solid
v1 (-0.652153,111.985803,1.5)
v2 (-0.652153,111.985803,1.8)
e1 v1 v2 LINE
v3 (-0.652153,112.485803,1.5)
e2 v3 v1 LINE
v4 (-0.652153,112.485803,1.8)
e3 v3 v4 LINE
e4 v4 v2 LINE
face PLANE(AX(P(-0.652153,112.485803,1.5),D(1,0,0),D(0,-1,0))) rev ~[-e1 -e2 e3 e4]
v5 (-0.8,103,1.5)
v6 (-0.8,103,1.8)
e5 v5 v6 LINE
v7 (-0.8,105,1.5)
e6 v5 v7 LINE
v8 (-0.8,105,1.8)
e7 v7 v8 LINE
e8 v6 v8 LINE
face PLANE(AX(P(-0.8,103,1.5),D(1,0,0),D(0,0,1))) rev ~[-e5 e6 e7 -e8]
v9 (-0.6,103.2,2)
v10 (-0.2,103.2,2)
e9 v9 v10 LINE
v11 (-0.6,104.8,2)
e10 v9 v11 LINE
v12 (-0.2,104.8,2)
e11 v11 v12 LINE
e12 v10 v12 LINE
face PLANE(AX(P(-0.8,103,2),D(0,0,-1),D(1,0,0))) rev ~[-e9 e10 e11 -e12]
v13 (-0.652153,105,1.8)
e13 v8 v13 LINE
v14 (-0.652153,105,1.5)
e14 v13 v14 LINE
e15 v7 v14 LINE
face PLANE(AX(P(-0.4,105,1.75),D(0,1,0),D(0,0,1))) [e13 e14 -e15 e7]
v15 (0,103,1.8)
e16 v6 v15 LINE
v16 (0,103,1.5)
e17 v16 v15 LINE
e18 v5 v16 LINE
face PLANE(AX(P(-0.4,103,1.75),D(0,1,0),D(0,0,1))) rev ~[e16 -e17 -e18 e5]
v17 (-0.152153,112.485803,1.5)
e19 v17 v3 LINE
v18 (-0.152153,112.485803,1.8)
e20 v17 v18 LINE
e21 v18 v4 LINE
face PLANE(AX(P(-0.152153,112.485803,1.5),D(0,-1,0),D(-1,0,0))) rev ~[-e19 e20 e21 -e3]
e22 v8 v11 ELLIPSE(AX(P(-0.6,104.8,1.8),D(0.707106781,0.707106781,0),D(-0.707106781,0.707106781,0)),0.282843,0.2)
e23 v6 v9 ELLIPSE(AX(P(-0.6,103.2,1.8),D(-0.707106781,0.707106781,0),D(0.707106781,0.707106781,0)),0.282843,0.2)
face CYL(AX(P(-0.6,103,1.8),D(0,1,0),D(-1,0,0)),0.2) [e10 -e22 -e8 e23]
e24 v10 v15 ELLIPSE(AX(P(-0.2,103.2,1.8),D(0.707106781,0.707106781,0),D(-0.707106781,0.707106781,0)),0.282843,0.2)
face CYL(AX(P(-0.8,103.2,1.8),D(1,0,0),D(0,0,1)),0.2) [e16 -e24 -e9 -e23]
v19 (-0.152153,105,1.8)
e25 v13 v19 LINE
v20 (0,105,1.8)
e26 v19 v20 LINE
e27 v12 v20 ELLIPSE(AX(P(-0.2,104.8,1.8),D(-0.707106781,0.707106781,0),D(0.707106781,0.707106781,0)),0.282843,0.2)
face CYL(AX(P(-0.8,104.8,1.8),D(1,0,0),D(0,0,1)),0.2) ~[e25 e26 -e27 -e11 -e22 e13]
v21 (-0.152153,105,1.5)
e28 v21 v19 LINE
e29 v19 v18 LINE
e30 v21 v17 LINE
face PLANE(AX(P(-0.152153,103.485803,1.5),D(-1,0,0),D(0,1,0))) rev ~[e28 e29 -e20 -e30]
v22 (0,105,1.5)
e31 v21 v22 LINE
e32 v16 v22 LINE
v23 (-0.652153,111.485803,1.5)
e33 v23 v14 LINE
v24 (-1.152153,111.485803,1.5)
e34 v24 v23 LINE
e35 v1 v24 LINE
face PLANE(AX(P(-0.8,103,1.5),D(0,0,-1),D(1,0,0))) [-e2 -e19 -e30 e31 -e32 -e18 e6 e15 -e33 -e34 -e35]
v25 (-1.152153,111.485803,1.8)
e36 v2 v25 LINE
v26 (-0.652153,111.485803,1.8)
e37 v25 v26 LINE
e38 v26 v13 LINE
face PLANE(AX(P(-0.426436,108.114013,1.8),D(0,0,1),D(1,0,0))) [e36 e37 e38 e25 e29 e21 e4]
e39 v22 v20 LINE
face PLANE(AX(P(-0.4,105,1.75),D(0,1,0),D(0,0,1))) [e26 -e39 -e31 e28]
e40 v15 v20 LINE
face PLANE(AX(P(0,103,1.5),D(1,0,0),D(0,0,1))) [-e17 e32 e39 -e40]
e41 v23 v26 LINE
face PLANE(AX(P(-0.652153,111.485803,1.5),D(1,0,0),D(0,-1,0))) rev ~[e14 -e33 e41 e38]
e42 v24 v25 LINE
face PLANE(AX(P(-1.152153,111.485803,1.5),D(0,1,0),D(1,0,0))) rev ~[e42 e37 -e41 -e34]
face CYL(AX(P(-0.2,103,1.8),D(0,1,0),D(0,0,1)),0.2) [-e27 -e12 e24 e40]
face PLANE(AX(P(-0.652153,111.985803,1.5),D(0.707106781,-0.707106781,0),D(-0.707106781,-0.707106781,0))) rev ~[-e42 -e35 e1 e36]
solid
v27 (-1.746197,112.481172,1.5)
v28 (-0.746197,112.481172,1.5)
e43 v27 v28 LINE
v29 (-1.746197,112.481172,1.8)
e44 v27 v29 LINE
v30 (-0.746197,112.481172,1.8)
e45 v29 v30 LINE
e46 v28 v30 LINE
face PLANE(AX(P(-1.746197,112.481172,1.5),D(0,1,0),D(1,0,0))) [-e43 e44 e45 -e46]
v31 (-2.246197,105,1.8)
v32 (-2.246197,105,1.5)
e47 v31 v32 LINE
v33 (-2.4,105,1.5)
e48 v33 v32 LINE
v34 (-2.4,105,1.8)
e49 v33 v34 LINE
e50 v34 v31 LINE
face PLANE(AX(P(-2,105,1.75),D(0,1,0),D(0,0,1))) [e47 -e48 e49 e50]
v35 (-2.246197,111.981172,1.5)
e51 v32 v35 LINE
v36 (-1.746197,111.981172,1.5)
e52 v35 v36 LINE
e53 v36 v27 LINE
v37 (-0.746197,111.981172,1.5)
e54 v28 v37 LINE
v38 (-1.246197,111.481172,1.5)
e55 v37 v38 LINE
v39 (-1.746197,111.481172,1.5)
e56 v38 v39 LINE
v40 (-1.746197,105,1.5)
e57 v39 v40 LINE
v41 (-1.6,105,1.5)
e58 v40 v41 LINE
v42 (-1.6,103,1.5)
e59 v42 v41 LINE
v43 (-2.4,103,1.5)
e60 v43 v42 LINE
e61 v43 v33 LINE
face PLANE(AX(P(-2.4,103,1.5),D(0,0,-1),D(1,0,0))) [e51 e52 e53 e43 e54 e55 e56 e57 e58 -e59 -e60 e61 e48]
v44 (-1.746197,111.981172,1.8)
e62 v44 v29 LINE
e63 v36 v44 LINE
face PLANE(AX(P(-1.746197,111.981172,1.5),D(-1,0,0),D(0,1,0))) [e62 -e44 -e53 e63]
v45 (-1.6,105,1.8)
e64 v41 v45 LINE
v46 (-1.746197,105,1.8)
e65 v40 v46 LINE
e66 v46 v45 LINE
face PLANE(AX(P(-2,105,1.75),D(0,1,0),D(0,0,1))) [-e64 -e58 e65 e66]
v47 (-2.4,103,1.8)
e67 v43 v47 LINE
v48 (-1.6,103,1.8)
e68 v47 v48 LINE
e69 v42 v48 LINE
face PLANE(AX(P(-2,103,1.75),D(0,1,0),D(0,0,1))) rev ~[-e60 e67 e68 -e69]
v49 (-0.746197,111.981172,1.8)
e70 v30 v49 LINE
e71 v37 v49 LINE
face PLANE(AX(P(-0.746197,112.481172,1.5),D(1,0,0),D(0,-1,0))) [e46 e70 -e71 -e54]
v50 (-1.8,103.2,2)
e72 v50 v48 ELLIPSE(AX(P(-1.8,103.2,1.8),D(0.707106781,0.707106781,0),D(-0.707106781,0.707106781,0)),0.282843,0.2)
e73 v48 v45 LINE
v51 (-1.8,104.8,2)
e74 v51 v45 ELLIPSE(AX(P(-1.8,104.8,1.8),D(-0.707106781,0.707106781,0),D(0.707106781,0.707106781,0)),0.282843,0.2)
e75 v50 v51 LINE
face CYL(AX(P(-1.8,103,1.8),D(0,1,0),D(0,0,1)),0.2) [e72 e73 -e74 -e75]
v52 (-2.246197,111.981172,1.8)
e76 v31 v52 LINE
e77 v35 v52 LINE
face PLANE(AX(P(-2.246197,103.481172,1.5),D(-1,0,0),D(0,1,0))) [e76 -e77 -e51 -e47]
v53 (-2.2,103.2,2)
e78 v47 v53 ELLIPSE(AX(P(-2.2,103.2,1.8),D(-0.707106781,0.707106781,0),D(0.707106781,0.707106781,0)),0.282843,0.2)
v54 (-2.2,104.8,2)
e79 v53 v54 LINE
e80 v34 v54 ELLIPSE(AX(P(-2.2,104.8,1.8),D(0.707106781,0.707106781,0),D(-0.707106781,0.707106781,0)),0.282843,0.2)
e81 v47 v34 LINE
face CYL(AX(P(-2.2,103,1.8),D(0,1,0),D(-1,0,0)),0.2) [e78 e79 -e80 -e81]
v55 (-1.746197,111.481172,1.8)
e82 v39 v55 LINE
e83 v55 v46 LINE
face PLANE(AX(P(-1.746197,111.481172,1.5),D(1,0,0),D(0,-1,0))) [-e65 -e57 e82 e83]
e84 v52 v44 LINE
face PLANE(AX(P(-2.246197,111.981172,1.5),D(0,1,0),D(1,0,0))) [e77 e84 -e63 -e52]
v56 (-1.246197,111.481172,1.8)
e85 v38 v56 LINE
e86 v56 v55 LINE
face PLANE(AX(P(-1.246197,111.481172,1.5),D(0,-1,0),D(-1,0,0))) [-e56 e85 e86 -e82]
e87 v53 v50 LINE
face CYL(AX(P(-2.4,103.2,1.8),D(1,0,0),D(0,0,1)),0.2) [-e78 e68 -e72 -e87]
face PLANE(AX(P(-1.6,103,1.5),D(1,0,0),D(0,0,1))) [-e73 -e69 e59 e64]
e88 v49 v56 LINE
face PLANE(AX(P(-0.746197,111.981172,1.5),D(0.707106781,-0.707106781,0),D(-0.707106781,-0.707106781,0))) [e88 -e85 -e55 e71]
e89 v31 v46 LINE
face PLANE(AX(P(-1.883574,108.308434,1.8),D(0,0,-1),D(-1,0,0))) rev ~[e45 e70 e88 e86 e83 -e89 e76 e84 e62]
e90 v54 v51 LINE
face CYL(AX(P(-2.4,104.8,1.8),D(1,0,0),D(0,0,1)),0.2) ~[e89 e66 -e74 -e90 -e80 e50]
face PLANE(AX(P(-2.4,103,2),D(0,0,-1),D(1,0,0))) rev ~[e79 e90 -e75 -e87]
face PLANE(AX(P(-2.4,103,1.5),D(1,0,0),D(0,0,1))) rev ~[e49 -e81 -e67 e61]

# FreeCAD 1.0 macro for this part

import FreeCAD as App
import Part
import Sketcher
from FreeCAD import Vector
Q = App.Units.Quantity


def edges_at(feature, points):
    """Names of the edges that pass closest to the given points."""
    edges = feature.Shape.Edges
    near = lambda p: min(range(len(edges)), key=lambda i: edges[i].distToShape(Part.Vertex(*p))[0])
    return sorted({f"Edge{near(p) + 1}" for p in points})


def add_polygon(sketch, points):
    """Adds a closed chain of lines whose ends are joined by coincident constraints."""
    first, n = sketch.GeometryCount, len(points)
    for a, b in zip(points, points[1:] + points[:1]):
        sketch.addGeometry(Part.LineSegment(App.Vector(*a, 0), App.Vector(*b, 0)), False)
    for i in range(n):
        sketch.addConstraint(Sketcher.Constraint("Coincident", first + i, 2, first + (i + 1) % n, 1))

doc = App.newDocument("Part")
body = doc.addObject("PartDesign::Body", "Body")

sketch1 = body.newObject("Sketcher::SketchObject", "Sketch")
sketch1.AttachmentSupport = (doc.getObject("XY_Plane"), [""])
sketch1.MapMode = "FlatFace"
sketch1.AttachmentOffset = App.Placement(Vector(0, 0, -6), App.Rotation())
add_polygon(sketch1, [(5.9, 2.4), (5.9, 1.6), (6.4, 1.6), (6.4, 2.4)])
sketch1.addConstraint(Sketcher.Constraint("Vertical", 0))
sketch1.addConstraint(Sketcher.Constraint("Horizontal", 1))
sketch1.addConstraint(Sketcher.Constraint("Vertical", 2))
sketch1.addConstraint(Sketcher.Constraint("Horizontal", 3))
sketch1.addConstraint(Sketcher.Constraint("DistanceX", 1, 1, 1, 2, 0.5))
sketch1.addConstraint(Sketcher.Constraint("DistanceY", 0, 2, 0, 1, 0.8))
sketch1.addConstraint(Sketcher.Constraint("DistanceX", -1, 1, 0, 2, 5.9))
sketch1.addConstraint(Sketcher.Constraint("DistanceY", -1, 1, 0, 2, 1.6))
pad1 = body.newObject("PartDesign::Pad", "Pad")
pad1.Profile = sketch1
pad1.Length = 2
doc.recompute()

fillet = body.newObject("PartDesign::Fillet", "Fillet")
fillet.Base = (pad1, edges_at(pad1, [
    (6.4, 1.6, -5),
    (6.4, 2, -4),
    (6.4, 2.4, -5),
    (6.4, 2, -6),
]))
fillet.Radius = 0.2
body2 = doc.addObject("PartDesign::Body", "Body001")
doc.recompute()

body.Placement = App.Placement(Vector(0, 0, 0), App.Rotation(Vector(0, 1, 0), 270))
boolean = body2.newObject("PartDesign::Boolean", "Boolean")
boolean.Type = "Fuse"
boolean.addObjects([body])
body3 = doc.addObject("PartDesign::Body", "Body002")
doc.recompute()

body2.Placement = App.Placement(Vector(-4, 109, -4.4), App.Rotation(Vector(0, 0, 1), 270))
boolean2 = body3.newObject("PartDesign::Boolean", "Boolean001")
boolean2.Type = "Fuse"
boolean2.addObjects([body2])
body4 = doc.addObject("PartDesign::Body", "Body003")

sketch2 = body4.newObject("Sketcher::SketchObject", "Sketch001")
sketch2.AttachmentSupport = (doc.getObject("YZ_Plane003"), [""])
sketch2.MapMode = "FlatFace"
add_polygon(sketch2, [(8.1, 3), (8.1, -5.5), (8.6, -5.5), (8.6, 2.5), (9.1, 2.5), (9.6, 3), (9.6, 3.5), (8.6, 3.5), (8.6, 3)])
sketch2.addConstraint(Sketcher.Constraint("Vertical", 0))
sketch2.addConstraint(Sketcher.Constraint("Horizontal", 1))
sketch2.addConstraint(Sketcher.Constraint("Vertical", 2))
sketch2.addConstraint(Sketcher.Constraint("Horizontal", 3))
sketch2.addConstraint(Sketcher.Constraint("Vertical", 5))
sketch2.addConstraint(Sketcher.Constraint("Horizontal", 6))
sketch2.addConstraint(Sketcher.Constraint("Vertical", 7))
sketch2.addConstraint(Sketcher.Constraint("Horizontal", 8))
sketch2.addConstraint(Sketcher.Constraint("Horizontal", 4, 2, 7, 2))
sketch2.addConstraint(Sketcher.Constraint("Vertical", 2, 2, 6, 2))
sketch2.addConstraint(Sketcher.Constraint("Equal", 1, 3))
sketch2.addConstraint(Sketcher.Constraint("Equal", 8, 5))
sketch2.addConstraint(Sketcher.Constraint("DistanceX", 6, 2, 6, 1, 1.0))
sketch2.addConstraint(Sketcher.Constraint("DistanceY", 2, 1, 2, 2, 8.0))
sketch2.addConstraint(Sketcher.Constraint("Angle", 4, Q("45 deg")))
sketch2.addConstraint(Sketcher.Constraint("DistanceX", 1, 1, 1, 2, 0.5))
sketch2.addConstraint(Sketcher.Constraint("DistanceY", -1, 1, 2, 2, 2.481172))
sketch2.addConstraint(Sketcher.Constraint("DistanceX", -1, 1, 0, 2, 8.053803))
pad2 = body4.newObject("PartDesign::Pad", "Pad001")
pad2.Profile = sketch2
pad2.Length = 0.3
body5 = doc.addObject("PartDesign::Body", "Body004")
body5.AllowCompound = True

sketch3 = body5.newObject("Sketcher::SketchObject", "Sketch002")
sketch3.AttachmentSupport = (doc.getObject("YZ_Plane004"), [""])
sketch3.MapMode = "FlatFace"
add_polygon(sketch3, [(9.6, -5.5), (10.1, -5.5), (10.1, 3.5), (9.6, 3.5), (9.6, 3), (9.1, 2.5), (9.6, 2.5)])
sketch3.addConstraint(Sketcher.Constraint("Horizontal", 0))
sketch3.addConstraint(Sketcher.Constraint("Vertical", 1))
sketch3.addConstraint(Sketcher.Constraint("Horizontal", 2))
sketch3.addConstraint(Sketcher.Constraint("Vertical", 3))
sketch3.addConstraint(Sketcher.Constraint("Horizontal", 5))
sketch3.addConstraint(Sketcher.Constraint("Vertical", 6))
sketch3.addConstraint(Sketcher.Constraint("Vertical", 3, 2, 5, 2))
sketch3.addConstraint(Sketcher.Constraint("Equal", 2, 5))
sketch3.addConstraint(Sketcher.Constraint("Equal", 5, 3))
sketch3.addConstraint(Sketcher.Constraint("DistanceY", 1, 1, 1, 2, 9.0))
sketch3.addConstraint(Sketcher.Constraint("DistanceY", 6, 2, 6, 1, 8.0))
sketch3.addConstraint(Sketcher.Constraint("Angle", 4, Q("-135 deg")))
sketch3.addConstraint(Sketcher.Constraint("DistanceX", -1, 1, 0, 2, 10.147847))
sketch3.addConstraint(Sketcher.Constraint("DistanceY", 0, 2, -1, 1, 5.514197))
pad3 = body5.newObject("PartDesign::Pad", "Pad002")
pad3.Profile = sketch3
pad3.Length = 0.3
doc.recompute()

boolean3 = body5.newObject("PartDesign::Boolean", "Boolean002")
boolean3.Type = "Fuse"
boolean3.addObjects([body4])
body6 = doc.addObject("PartDesign::Body", "Body005")
body6.AllowCompound = True
doc.recompute()

body5.Placement = App.Placement(Vector(0, 0, 0), App.Rotation(Vector(0, 1, 0), 270))
boolean4 = body6.newObject("PartDesign::Boolean", "Boolean003")
boolean4.Type = "Fuse"
boolean4.addObjects([body5])
body7 = doc.addObject("PartDesign::Body", "Body006")
body7.AllowCompound = True
doc.recompute()

body6.Placement = App.Placement(Vector(-10.3, 109, 1.5), App.Rotation(Vector(0, 0, 1), 270))
boolean5 = body7.newObject("PartDesign::Boolean", "Boolean004")
boolean5.Type = "Fuse"
boolean5.addObjects([body6])
doc.recompute()

boolean6 = body7.newObject("PartDesign::Boolean", "Boolean005")
boolean6.Type = "Fuse"
boolean6.addObjects([body3])
body8 = doc.addObject("PartDesign::Body", "Body007")

sketch4 = body8.newObject("Sketcher::SketchObject", "Sketch003")
sketch4.AttachmentSupport = (doc.getObject("XY_Plane007"), [""])
sketch4.MapMode = "FlatFace"
sketch4.AttachmentOffset = App.Placement(Vector(0, 0, -6), App.Rotation())
add_polygon(sketch4, [(5.9, 4), (5.9, 3.2), (6.4, 3.2), (6.4, 4)])
sketch4.addConstraint(Sketcher.Constraint("Vertical", 0))
sketch4.addConstraint(Sketcher.Constraint("Horizontal", 1))
sketch4.addConstraint(Sketcher.Constraint("Vertical", 2))
sketch4.addConstraint(Sketcher.Constraint("Horizontal", 3))
sketch4.addConstraint(Sketcher.Constraint("DistanceX", 1, 1, 1, 2, 0.5))
sketch4.addConstraint(Sketcher.Constraint("DistanceY", 0, 2, 0, 1, 0.8))
sketch4.addConstraint(Sketcher.Constraint("DistanceY", -1, 1, 2, 2, 4.0))
sketch4.addConstraint(Sketcher.Constraint("DistanceX", -1, 1, 0, 2, 5.9))
pad4 = body8.newObject("PartDesign::Pad", "Pad003")
pad4.Profile = sketch4
pad4.Length = 2
doc.recompute()

fillet2 = body8.newObject("PartDesign::Fillet", "Fillet001")
fillet2.Base = (pad4, edges_at(pad4, [
    (6.4, 3.2, -5),
    (6.4, 3.6, -4),
    (6.4, 4, -5),
    (6.4, 3.6, -6),
]))
fillet2.Radius = 0.2
body9 = doc.addObject("PartDesign::Body", "Body008")
doc.recompute()

body8.Placement = App.Placement(Vector(0, 0, 0), App.Rotation(Vector(0, 1, 0), 270))
boolean7 = body9.newObject("PartDesign::Boolean", "Boolean006")
boolean7.Type = "Fuse"
boolean7.addObjects([body8])
body10 = doc.addObject("PartDesign::Body", "Body009")
body10.AllowCompound = True
doc.recompute()

body9.Placement = App.Placement(Vector(-4, 109, -4.4), App.Rotation(Vector(0, 0, 1), 270))
boolean8 = body10.newObject("PartDesign::Boolean", "Boolean007")
boolean8.Type = "Fuse"
boolean8.addObjects([body9])
doc.recompute()

boolean9 = body10.newObject("PartDesign::Boolean", "Boolean008")
boolean9.Type = "Fuse"
boolean9.addObjects([body7])

doc.recompute()
